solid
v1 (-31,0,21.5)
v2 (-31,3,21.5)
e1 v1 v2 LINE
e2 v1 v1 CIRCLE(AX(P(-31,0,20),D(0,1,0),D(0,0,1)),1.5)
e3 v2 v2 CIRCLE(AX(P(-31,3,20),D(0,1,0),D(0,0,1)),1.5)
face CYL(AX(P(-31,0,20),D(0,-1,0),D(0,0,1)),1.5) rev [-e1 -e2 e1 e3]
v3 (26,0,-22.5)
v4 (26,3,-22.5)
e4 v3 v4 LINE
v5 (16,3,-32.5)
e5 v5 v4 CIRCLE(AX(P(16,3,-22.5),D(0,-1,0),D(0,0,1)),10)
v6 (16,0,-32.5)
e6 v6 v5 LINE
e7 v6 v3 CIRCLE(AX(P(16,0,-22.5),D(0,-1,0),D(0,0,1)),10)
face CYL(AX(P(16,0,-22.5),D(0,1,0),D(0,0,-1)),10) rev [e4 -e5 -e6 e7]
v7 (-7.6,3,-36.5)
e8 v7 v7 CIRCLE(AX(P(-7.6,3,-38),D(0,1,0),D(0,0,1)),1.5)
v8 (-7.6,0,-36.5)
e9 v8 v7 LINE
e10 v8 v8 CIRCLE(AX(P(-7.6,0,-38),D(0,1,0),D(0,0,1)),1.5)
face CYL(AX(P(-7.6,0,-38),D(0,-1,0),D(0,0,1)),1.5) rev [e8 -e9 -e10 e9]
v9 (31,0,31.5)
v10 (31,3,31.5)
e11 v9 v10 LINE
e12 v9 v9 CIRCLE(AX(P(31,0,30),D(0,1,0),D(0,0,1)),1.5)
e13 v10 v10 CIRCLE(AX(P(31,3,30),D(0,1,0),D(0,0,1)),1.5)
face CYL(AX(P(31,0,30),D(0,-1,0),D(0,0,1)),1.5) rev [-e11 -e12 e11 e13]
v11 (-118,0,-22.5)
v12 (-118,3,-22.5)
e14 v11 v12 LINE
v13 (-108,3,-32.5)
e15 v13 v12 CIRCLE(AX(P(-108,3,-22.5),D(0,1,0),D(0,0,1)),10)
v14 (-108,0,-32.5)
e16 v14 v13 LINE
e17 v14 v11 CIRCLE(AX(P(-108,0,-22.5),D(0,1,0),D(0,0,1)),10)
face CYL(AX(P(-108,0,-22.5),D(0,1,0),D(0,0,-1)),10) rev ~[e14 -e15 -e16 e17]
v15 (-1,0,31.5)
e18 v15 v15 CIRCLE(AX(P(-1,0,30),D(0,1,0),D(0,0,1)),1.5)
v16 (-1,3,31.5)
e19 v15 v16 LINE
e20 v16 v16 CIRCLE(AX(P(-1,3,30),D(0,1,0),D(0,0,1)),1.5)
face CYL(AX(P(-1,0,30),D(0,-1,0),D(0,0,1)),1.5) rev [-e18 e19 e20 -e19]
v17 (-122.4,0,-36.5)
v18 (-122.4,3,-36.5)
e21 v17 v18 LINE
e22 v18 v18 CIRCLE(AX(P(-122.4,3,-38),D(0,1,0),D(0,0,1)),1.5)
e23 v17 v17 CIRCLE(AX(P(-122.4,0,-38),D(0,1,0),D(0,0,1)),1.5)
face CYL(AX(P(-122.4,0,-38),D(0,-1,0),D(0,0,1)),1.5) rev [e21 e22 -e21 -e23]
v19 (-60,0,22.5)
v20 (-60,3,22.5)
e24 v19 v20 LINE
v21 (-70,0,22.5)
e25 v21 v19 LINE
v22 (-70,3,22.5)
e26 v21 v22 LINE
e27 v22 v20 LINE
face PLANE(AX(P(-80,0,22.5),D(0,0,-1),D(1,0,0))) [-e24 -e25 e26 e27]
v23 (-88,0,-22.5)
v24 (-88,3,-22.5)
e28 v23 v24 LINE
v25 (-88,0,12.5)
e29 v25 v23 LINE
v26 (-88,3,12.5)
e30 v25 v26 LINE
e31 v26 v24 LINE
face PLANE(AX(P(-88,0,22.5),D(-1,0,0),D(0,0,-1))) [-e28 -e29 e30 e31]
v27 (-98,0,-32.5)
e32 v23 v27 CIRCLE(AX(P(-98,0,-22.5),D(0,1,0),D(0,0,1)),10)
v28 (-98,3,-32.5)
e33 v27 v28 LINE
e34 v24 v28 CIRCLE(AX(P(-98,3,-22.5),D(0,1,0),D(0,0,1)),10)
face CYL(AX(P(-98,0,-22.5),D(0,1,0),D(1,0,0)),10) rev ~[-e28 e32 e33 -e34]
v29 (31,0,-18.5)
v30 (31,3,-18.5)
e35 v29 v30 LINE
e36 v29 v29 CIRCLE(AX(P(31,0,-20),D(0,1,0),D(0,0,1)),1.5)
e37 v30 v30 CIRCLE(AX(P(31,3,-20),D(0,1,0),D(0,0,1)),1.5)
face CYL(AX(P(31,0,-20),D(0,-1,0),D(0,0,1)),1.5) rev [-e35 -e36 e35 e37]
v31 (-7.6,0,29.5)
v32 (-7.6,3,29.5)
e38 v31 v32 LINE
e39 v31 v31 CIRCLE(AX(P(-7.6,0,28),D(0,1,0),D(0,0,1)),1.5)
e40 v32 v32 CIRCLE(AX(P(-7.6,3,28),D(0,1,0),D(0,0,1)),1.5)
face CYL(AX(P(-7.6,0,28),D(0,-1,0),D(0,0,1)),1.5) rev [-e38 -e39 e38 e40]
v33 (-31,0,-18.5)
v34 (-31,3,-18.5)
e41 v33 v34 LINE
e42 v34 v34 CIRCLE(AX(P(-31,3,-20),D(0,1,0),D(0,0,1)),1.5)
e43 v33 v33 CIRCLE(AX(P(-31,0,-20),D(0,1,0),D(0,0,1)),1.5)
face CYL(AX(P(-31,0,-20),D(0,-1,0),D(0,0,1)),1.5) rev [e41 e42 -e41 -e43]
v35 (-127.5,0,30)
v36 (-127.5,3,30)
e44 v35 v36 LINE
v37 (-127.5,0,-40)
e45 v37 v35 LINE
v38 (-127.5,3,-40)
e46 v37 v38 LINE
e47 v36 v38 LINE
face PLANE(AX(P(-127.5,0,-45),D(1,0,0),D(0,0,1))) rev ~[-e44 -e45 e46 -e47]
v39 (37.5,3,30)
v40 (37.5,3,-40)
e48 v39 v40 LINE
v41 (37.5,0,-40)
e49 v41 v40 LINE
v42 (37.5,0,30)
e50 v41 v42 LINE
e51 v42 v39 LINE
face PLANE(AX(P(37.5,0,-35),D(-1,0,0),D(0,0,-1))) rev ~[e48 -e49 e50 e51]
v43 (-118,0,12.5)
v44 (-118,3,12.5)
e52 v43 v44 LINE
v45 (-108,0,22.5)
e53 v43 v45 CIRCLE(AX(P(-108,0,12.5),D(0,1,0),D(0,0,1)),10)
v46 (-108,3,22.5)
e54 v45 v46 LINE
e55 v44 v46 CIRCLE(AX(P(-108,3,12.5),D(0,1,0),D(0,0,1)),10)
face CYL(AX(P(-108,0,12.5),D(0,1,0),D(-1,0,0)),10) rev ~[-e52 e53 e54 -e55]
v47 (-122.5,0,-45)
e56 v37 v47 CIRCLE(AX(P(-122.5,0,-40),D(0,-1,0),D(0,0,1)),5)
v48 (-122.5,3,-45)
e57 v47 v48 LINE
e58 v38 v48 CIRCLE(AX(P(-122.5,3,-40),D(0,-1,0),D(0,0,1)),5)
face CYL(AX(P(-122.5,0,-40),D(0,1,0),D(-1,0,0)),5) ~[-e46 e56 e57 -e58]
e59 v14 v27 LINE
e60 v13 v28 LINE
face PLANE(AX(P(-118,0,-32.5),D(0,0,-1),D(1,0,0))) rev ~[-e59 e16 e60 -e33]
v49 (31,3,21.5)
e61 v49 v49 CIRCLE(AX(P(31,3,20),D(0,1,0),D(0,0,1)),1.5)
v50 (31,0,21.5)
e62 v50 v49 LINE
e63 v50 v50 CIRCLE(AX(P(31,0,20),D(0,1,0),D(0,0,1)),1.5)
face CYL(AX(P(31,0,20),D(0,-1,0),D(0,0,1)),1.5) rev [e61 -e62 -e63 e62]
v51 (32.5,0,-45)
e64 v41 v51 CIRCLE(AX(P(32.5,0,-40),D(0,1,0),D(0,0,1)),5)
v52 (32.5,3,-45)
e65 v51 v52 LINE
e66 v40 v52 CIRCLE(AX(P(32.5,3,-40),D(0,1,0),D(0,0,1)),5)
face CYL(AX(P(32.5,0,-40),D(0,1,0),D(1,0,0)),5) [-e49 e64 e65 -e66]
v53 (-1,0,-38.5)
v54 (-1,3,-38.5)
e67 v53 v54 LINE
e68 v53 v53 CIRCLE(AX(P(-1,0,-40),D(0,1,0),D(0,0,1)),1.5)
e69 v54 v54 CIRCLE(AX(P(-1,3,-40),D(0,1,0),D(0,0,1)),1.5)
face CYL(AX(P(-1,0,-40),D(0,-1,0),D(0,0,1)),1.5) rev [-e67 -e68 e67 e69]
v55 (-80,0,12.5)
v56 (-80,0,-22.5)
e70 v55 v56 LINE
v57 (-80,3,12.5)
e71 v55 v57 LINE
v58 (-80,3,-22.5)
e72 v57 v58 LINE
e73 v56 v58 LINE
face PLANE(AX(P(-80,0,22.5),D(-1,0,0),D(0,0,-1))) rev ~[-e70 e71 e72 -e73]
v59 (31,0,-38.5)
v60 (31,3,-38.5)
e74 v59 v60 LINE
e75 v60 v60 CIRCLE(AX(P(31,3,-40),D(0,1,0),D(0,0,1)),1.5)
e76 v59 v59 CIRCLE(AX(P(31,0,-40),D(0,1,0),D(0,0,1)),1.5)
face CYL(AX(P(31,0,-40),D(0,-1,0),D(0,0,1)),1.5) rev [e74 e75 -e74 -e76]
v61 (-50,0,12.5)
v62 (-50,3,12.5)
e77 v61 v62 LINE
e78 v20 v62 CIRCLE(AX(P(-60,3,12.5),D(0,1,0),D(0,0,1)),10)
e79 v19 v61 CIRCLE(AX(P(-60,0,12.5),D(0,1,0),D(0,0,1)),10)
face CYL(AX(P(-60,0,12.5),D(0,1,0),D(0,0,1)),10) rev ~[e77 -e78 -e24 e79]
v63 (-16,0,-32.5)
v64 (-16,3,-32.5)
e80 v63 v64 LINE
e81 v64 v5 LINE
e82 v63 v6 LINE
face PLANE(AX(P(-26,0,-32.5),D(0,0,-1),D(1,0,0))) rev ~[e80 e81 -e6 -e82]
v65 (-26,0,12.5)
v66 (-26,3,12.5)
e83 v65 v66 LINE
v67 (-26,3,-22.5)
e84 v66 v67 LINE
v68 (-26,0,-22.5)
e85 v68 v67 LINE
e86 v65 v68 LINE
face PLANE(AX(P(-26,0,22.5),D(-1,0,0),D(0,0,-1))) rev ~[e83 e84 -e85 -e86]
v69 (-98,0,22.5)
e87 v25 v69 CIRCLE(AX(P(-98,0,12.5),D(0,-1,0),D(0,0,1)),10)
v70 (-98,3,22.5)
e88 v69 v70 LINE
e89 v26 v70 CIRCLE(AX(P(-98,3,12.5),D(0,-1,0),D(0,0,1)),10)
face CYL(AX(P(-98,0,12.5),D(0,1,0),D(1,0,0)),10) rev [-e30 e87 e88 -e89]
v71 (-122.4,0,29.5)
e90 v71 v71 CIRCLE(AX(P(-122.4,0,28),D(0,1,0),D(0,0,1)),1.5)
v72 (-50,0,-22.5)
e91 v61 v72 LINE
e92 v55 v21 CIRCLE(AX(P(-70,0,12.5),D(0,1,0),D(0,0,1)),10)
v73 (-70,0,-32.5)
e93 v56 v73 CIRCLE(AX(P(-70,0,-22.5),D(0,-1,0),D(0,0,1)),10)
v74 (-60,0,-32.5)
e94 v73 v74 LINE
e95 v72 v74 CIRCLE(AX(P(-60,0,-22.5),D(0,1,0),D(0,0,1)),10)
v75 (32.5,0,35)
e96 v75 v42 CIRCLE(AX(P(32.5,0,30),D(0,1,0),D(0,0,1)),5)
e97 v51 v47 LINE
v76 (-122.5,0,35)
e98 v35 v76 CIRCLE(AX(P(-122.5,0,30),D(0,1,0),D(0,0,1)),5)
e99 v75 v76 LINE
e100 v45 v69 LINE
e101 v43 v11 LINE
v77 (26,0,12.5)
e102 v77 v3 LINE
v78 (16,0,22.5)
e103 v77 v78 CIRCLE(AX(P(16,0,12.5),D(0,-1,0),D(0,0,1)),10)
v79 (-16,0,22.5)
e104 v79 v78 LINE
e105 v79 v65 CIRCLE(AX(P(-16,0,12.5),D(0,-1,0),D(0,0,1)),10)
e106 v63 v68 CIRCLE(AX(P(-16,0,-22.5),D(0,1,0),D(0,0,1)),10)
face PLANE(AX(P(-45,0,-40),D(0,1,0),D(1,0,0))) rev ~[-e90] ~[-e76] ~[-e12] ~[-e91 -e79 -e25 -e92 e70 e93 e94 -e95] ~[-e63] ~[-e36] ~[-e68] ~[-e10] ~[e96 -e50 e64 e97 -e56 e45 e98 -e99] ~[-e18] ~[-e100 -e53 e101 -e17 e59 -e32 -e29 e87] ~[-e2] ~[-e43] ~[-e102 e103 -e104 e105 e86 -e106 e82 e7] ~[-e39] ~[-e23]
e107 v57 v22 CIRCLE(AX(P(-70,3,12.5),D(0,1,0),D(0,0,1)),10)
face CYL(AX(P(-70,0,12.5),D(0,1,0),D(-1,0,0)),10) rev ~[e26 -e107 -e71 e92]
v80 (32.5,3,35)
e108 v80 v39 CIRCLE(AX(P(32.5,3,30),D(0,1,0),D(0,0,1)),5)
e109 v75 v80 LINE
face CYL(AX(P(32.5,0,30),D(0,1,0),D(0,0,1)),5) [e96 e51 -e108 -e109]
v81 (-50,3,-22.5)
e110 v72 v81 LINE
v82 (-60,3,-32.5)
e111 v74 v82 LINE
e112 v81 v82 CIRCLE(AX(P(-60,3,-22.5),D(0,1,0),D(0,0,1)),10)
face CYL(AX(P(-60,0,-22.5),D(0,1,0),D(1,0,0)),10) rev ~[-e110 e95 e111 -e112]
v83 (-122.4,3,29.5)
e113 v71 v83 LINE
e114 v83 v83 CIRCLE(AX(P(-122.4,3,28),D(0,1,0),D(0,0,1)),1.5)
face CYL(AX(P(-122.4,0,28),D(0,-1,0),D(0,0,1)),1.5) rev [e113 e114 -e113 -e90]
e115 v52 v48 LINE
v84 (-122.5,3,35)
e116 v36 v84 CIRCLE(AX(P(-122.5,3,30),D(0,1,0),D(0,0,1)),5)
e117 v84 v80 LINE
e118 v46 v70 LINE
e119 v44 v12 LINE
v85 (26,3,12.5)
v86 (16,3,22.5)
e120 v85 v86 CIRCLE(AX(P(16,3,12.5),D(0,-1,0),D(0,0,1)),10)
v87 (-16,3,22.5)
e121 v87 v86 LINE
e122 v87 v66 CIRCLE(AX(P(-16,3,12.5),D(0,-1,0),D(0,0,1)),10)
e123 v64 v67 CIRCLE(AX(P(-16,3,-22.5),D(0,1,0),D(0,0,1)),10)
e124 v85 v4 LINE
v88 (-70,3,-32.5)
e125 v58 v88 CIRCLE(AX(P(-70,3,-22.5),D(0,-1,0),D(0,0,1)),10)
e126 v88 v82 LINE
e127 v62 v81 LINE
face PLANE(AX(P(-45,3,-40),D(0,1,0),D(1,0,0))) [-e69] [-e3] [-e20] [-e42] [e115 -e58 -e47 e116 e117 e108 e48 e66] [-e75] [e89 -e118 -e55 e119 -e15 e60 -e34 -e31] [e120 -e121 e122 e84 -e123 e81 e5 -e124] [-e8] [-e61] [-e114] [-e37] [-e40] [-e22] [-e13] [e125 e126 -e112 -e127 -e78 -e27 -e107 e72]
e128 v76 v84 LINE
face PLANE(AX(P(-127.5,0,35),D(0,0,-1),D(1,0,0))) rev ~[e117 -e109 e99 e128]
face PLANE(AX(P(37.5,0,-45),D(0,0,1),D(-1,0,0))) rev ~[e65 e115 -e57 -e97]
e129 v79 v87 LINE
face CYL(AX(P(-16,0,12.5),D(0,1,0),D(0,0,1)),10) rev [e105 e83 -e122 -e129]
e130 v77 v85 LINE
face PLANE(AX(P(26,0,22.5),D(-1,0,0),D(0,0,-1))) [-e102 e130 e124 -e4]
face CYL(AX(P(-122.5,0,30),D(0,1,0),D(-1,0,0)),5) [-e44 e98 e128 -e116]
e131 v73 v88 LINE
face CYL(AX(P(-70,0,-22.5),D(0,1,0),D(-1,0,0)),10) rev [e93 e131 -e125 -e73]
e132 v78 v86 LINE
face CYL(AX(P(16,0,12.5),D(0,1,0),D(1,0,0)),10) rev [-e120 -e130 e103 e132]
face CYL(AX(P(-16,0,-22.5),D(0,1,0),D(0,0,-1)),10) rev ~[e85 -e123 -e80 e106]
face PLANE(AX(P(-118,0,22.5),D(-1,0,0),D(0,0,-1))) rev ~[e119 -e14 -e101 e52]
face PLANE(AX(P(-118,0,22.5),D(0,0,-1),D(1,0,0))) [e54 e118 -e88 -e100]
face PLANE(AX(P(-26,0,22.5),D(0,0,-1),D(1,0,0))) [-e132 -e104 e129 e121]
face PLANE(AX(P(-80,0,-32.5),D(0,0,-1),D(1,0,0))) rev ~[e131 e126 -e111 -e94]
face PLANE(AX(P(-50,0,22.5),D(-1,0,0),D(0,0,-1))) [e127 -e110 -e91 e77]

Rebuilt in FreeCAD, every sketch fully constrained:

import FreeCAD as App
import Part
import Sketcher


def edges_at(feature, points):
    """Names of the edges that pass closest to the given points."""
    edges = feature.Shape.Edges
    near = lambda p: min(range(len(edges)), key=lambda i: edges[i].distToShape(Part.Vertex(*p))[0])
    return sorted({f"Edge{near(p) + 1}" for p in points})


def add_polygon(sketch, points):
    """Adds a closed chain of lines whose ends are joined by coincident constraints."""
    first, n = sketch.GeometryCount, len(points)
    for a, b in zip(points, points[1:] + points[:1]):
        sketch.addGeometry(Part.LineSegment(App.Vector(*a, 0), App.Vector(*b, 0)), False)
    for i in range(n):
        sketch.addConstraint(Sketcher.Constraint("Coincident", first + i, 2, first + (i + 1) % n, 1))

doc = App.newDocument("Part")
body = doc.addObject("PartDesign::Body", "Body")

# Sketch on XZ plane
sketch1 = doc.addObject("Sketcher::SketchObject", "Sketch")
body.addObject(sketch1)
sketch1.AttachmentSupport = (doc.XZ_Plane, [""])
sketch1.MapMode = "FlatFace"
add_polygon(sketch1, [(37.5, 35), (37.5, -45), (-127.5, -45), (-127.5, 35)])  # lines 0-3
sketch1.addGeometry(Part.Circle(App.Vector(-31, 20, 0), App.Vector(0, 0, 1), 1.5), False)  # 4
sketch1.addGeometry(Part.Circle(App.Vector(-7.6, 28, 0), App.Vector(0, 0, 1), 1.5), False)  # 5
sketch1.addGeometry(Part.Circle(App.Vector(-1, 30, 0), App.Vector(0, 0, 1), 1.5), False)  # 6
sketch1.addGeometry(Part.Circle(App.Vector(31, 30, 0), App.Vector(0, 0, 1), 1.5), False)  # 7
sketch1.addGeometry(Part.Circle(App.Vector(31, 20, 0), App.Vector(0, 0, 1), 1.5), False)  # 8
sketch1.addGeometry(Part.Circle(App.Vector(-31, -20, 0), App.Vector(0, 0, 1), 1.5), False)  # 9
add_polygon(sketch1, [(26, 22.5), (-26, 22.5), (-26, -32.5), (26, -32.5)])  # lines 10-13
sketch1.addGeometry(Part.Circle(App.Vector(31, -20, 0), App.Vector(0, 0, 1), 1.5), False)  # 14
add_polygon(sketch1, [(-80, -32.5), (-50, -32.5), (-50, 22.5), (-80, 22.5)])  # lines 15-18
sketch1.addGeometry(Part.Circle(App.Vector(-122.4, 28, 0), App.Vector(0, 0, 1), 1.5), False)  # 19
add_polygon(sketch1, [(-88, 22.5), (-118, 22.5), (-118, -32.5), (-88, -32.5)])  # lines 20-23
sketch1.addGeometry(Part.Circle(App.Vector(-1, -40, 0), App.Vector(0, 0, 1), 1.5), False)  # 24
sketch1.addGeometry(Part.Circle(App.Vector(31, -40, 0), App.Vector(0, 0, 1), 1.5), False)  # 25
sketch1.addGeometry(Part.Circle(App.Vector(-122.4, -38, 0), App.Vector(0, 0, 1), 1.5), False)  # 26
sketch1.addGeometry(Part.Circle(App.Vector(-7.6, -38, 0), App.Vector(0, 0, 1), 1.5), False)  # 27
sketch1.addConstraint(Sketcher.Constraint("Vertical", 0))
sketch1.addConstraint(Sketcher.Constraint("Horizontal", 1))
sketch1.addConstraint(Sketcher.Constraint("Vertical", 2))
sketch1.addConstraint(Sketcher.Constraint("Horizontal", 3))
sketch1.addConstraint(Sketcher.Constraint("Horizontal", 10))
sketch1.addConstraint(Sketcher.Constraint("Vertical", 11))
sketch1.addConstraint(Sketcher.Constraint("Horizontal", 12))
sketch1.addConstraint(Sketcher.Constraint("Vertical", 13))
sketch1.addConstraint(Sketcher.Constraint("Horizontal", 15))
sketch1.addConstraint(Sketcher.Constraint("Vertical", 16))
sketch1.addConstraint(Sketcher.Constraint("Horizontal", 17))
sketch1.addConstraint(Sketcher.Constraint("Vertical", 18))
sketch1.addConstraint(Sketcher.Constraint("Horizontal", 20))
sketch1.addConstraint(Sketcher.Constraint("Vertical", 21))
sketch1.addConstraint(Sketcher.Constraint("Horizontal", 22))
sketch1.addConstraint(Sketcher.Constraint("Vertical", 23))
sketch1.addConstraint(Sketcher.Constraint("Equal", 4, 5))
sketch1.addConstraint(Sketcher.Constraint("Equal", 5, 6))
sketch1.addConstraint(Sketcher.Constraint("Equal", 6, 7))
sketch1.addConstraint(Sketcher.Constraint("Equal", 7, 8))
sketch1.addConstraint(Sketcher.Constraint("Equal", 8, 9))
sketch1.addConstraint(Sketcher.Constraint("Equal", 9, 14))
sketch1.addConstraint(Sketcher.Constraint("Equal", 14, 19))
sketch1.addConstraint(Sketcher.Constraint("Equal", 19, 24))
sketch1.addConstraint(Sketcher.Constraint("Equal", 24, 25))
sketch1.addConstraint(Sketcher.Constraint("Equal", 25, 26))
sketch1.addConstraint(Sketcher.Constraint("Equal", 26, 27))
sketch1.addConstraint(Sketcher.Constraint("Symmetric", 8, 3, 9, 3, -1, 1))
sketch1.addConstraint(Sketcher.Constraint("Symmetric", 4, 3, 14, 3, -1, 1))
sketch1.addConstraint(Sketcher.Constraint("Symmetric", 4, 3, 8, 3, -2))
sketch1.addConstraint(Sketcher.Constraint("Horizontal", 6, 3, 7, 3))
sketch1.addConstraint(Sketcher.Constraint("Horizontal", 5, 3, 19, 3))
sketch1.addConstraint(Sketcher.Constraint("Horizontal", 24, 3, 25, 3))
sketch1.addConstraint(Sketcher.Constraint("Horizontal", 26, 3, 27, 3))
sketch1.addConstraint(Sketcher.Constraint("Horizontal", 12, 2, 15, 2))
sketch1.addConstraint(Sketcher.Constraint("Horizontal", 13, 2, 16, 2))
sketch1.addConstraint(Sketcher.Constraint("Horizontal", 17, 2, 20, 2))
sketch1.addConstraint(Sketcher.Constraint("Horizontal", 18, 2, 21, 2))
sketch1.addConstraint(Sketcher.Constraint("Vertical", 7, 3, 8, 3))
sketch1.addConstraint(Sketcher.Constraint("Vertical", 6, 3, 24, 3))
sketch1.addConstraint(Sketcher.Constraint("Vertical", 14, 3, 25, 3))
sketch1.addConstraint(Sketcher.Constraint("Vertical", 19, 3, 26, 3))
sketch1.addConstraint(Sketcher.Constraint("Vertical", 5, 3, 27, 3))
sketch1.addConstraint(Sketcher.Constraint("Equal", 17, 20))
sketch1.addConstraint(Sketcher.Constraint("Diameter", 4, 3.0))
sketch1.addConstraint(Sketcher.Constraint("DistanceX", 1, 2, 1, 1, 165.0))
sketch1.addConstraint(Sketcher.Constraint("DistanceX", 10, 2, 10, 1, 52.0))
sketch1.addConstraint(Sketcher.Constraint("DistanceX", 15, 1, 15, 2, 30.0))
sketch1.addConstraint(Sketcher.Constraint("DistanceY", 0, 2, 0, 1, 80.0))
sketch1.addConstraint(Sketcher.Constraint("DistanceY", 11, 2, 11, 1, 55.0))
sketch1.addConstraint(Sketcher.Constraint("DistanceX", 4, 3, -1, 1, 31.0))
sketch1.addConstraint(Sketcher.Constraint("DistanceY", -1, 1, 4, 3, 20.0))
sketch1.addConstraint(Sketcher.Constraint("DistanceY", -1, 1, 5, 3, 28.0))
sketch1.addConstraint(Sketcher.Constraint("DistanceX", 6, 3, -1, 1, 1.0))
sketch1.addConstraint(Sketcher.Constraint("DistanceY", -1, 1, 6, 3, 30.0))
sketch1.addConstraint(Sketcher.Constraint("DistanceY", 24, 3, -1, 1, 40.0))
sketch1.addConstraint(Sketcher.Constraint("DistanceY", 26, 3, -1, 1, 38.0))
sketch1.addConstraint(Sketcher.Constraint("DistanceY", 0, 2, -1, 1, 45.0))
sketch1.addConstraint(Sketcher.Constraint("DistanceX", 10, 2, -1, 1, 26.0))
sketch1.addConstraint(Sketcher.Constraint("DistanceX", 15, 2, -1, 1, 50.0))
sketch1.addConstraint(Sketcher.Constraint("DistanceX", 20, 2, -1, 1, 118.0))
sketch1.addConstraint(Sketcher.Constraint("DistanceX", 5, 3, -1, 1, 7.6))
sketch1.addConstraint(Sketcher.Constraint("DistanceX", 19, 3, -1, 1, 122.4))
sketch1.addConstraint(Sketcher.Constraint("DistanceX", -1, 1, 0, 2, 37.5))
sketch1.addConstraint(Sketcher.Constraint("DistanceY", -1, 1, 10, 2, 22.5))
pad1 = doc.addObject("PartDesign::Pad", "Pad")
body.addObject(pad1)
pad1.Profile = sketch1
pad1.Length = 3
pad1.Reversed = True
doc.recompute()

fillet = doc.addObject("PartDesign::Fillet", "Fillet")
body.addObject(fillet)
fillet.Base = (pad1, edges_at(pad1, [
    (-88, 1.5, -32.5),
    (-118, 1.5, -32.5),
    (-118, 1.5, 22.5),
    (-88, 1.5, 22.5),
    (-50, 1.5, -32.5),
    (-80, 1.5, -32.5),
    (-80, 1.5, 22.5),
    (-50, 1.5, 22.5),
]))
fillet.Radius = 10
doc.recompute()

fillet2 = doc.addObject("PartDesign::Fillet", "Fillet001")
body.addObject(fillet2)
fillet2.Base = (fillet, edges_at(fillet, [
    (-127.5, 1.5, -45),
    (37.5, 1.5, -45),
    (37.5, 1.5, 35),
    (-127.5, 1.5, 35),
]))
fillet2.Radius = 5
doc.recompute()

fillet3 = doc.addObject("PartDesign::Fillet", "Fillet002")
body.addObject(fillet3)
fillet3.Base = (fillet2, edges_at(fillet2, [
    (26, 1.5, -32.5),
    (-26, 1.5, -32.5),
    (-26, 1.5, 22.5),
    (26, 1.5, 22.5),
]))
fillet3.Radius = 10

doc.recompute()
